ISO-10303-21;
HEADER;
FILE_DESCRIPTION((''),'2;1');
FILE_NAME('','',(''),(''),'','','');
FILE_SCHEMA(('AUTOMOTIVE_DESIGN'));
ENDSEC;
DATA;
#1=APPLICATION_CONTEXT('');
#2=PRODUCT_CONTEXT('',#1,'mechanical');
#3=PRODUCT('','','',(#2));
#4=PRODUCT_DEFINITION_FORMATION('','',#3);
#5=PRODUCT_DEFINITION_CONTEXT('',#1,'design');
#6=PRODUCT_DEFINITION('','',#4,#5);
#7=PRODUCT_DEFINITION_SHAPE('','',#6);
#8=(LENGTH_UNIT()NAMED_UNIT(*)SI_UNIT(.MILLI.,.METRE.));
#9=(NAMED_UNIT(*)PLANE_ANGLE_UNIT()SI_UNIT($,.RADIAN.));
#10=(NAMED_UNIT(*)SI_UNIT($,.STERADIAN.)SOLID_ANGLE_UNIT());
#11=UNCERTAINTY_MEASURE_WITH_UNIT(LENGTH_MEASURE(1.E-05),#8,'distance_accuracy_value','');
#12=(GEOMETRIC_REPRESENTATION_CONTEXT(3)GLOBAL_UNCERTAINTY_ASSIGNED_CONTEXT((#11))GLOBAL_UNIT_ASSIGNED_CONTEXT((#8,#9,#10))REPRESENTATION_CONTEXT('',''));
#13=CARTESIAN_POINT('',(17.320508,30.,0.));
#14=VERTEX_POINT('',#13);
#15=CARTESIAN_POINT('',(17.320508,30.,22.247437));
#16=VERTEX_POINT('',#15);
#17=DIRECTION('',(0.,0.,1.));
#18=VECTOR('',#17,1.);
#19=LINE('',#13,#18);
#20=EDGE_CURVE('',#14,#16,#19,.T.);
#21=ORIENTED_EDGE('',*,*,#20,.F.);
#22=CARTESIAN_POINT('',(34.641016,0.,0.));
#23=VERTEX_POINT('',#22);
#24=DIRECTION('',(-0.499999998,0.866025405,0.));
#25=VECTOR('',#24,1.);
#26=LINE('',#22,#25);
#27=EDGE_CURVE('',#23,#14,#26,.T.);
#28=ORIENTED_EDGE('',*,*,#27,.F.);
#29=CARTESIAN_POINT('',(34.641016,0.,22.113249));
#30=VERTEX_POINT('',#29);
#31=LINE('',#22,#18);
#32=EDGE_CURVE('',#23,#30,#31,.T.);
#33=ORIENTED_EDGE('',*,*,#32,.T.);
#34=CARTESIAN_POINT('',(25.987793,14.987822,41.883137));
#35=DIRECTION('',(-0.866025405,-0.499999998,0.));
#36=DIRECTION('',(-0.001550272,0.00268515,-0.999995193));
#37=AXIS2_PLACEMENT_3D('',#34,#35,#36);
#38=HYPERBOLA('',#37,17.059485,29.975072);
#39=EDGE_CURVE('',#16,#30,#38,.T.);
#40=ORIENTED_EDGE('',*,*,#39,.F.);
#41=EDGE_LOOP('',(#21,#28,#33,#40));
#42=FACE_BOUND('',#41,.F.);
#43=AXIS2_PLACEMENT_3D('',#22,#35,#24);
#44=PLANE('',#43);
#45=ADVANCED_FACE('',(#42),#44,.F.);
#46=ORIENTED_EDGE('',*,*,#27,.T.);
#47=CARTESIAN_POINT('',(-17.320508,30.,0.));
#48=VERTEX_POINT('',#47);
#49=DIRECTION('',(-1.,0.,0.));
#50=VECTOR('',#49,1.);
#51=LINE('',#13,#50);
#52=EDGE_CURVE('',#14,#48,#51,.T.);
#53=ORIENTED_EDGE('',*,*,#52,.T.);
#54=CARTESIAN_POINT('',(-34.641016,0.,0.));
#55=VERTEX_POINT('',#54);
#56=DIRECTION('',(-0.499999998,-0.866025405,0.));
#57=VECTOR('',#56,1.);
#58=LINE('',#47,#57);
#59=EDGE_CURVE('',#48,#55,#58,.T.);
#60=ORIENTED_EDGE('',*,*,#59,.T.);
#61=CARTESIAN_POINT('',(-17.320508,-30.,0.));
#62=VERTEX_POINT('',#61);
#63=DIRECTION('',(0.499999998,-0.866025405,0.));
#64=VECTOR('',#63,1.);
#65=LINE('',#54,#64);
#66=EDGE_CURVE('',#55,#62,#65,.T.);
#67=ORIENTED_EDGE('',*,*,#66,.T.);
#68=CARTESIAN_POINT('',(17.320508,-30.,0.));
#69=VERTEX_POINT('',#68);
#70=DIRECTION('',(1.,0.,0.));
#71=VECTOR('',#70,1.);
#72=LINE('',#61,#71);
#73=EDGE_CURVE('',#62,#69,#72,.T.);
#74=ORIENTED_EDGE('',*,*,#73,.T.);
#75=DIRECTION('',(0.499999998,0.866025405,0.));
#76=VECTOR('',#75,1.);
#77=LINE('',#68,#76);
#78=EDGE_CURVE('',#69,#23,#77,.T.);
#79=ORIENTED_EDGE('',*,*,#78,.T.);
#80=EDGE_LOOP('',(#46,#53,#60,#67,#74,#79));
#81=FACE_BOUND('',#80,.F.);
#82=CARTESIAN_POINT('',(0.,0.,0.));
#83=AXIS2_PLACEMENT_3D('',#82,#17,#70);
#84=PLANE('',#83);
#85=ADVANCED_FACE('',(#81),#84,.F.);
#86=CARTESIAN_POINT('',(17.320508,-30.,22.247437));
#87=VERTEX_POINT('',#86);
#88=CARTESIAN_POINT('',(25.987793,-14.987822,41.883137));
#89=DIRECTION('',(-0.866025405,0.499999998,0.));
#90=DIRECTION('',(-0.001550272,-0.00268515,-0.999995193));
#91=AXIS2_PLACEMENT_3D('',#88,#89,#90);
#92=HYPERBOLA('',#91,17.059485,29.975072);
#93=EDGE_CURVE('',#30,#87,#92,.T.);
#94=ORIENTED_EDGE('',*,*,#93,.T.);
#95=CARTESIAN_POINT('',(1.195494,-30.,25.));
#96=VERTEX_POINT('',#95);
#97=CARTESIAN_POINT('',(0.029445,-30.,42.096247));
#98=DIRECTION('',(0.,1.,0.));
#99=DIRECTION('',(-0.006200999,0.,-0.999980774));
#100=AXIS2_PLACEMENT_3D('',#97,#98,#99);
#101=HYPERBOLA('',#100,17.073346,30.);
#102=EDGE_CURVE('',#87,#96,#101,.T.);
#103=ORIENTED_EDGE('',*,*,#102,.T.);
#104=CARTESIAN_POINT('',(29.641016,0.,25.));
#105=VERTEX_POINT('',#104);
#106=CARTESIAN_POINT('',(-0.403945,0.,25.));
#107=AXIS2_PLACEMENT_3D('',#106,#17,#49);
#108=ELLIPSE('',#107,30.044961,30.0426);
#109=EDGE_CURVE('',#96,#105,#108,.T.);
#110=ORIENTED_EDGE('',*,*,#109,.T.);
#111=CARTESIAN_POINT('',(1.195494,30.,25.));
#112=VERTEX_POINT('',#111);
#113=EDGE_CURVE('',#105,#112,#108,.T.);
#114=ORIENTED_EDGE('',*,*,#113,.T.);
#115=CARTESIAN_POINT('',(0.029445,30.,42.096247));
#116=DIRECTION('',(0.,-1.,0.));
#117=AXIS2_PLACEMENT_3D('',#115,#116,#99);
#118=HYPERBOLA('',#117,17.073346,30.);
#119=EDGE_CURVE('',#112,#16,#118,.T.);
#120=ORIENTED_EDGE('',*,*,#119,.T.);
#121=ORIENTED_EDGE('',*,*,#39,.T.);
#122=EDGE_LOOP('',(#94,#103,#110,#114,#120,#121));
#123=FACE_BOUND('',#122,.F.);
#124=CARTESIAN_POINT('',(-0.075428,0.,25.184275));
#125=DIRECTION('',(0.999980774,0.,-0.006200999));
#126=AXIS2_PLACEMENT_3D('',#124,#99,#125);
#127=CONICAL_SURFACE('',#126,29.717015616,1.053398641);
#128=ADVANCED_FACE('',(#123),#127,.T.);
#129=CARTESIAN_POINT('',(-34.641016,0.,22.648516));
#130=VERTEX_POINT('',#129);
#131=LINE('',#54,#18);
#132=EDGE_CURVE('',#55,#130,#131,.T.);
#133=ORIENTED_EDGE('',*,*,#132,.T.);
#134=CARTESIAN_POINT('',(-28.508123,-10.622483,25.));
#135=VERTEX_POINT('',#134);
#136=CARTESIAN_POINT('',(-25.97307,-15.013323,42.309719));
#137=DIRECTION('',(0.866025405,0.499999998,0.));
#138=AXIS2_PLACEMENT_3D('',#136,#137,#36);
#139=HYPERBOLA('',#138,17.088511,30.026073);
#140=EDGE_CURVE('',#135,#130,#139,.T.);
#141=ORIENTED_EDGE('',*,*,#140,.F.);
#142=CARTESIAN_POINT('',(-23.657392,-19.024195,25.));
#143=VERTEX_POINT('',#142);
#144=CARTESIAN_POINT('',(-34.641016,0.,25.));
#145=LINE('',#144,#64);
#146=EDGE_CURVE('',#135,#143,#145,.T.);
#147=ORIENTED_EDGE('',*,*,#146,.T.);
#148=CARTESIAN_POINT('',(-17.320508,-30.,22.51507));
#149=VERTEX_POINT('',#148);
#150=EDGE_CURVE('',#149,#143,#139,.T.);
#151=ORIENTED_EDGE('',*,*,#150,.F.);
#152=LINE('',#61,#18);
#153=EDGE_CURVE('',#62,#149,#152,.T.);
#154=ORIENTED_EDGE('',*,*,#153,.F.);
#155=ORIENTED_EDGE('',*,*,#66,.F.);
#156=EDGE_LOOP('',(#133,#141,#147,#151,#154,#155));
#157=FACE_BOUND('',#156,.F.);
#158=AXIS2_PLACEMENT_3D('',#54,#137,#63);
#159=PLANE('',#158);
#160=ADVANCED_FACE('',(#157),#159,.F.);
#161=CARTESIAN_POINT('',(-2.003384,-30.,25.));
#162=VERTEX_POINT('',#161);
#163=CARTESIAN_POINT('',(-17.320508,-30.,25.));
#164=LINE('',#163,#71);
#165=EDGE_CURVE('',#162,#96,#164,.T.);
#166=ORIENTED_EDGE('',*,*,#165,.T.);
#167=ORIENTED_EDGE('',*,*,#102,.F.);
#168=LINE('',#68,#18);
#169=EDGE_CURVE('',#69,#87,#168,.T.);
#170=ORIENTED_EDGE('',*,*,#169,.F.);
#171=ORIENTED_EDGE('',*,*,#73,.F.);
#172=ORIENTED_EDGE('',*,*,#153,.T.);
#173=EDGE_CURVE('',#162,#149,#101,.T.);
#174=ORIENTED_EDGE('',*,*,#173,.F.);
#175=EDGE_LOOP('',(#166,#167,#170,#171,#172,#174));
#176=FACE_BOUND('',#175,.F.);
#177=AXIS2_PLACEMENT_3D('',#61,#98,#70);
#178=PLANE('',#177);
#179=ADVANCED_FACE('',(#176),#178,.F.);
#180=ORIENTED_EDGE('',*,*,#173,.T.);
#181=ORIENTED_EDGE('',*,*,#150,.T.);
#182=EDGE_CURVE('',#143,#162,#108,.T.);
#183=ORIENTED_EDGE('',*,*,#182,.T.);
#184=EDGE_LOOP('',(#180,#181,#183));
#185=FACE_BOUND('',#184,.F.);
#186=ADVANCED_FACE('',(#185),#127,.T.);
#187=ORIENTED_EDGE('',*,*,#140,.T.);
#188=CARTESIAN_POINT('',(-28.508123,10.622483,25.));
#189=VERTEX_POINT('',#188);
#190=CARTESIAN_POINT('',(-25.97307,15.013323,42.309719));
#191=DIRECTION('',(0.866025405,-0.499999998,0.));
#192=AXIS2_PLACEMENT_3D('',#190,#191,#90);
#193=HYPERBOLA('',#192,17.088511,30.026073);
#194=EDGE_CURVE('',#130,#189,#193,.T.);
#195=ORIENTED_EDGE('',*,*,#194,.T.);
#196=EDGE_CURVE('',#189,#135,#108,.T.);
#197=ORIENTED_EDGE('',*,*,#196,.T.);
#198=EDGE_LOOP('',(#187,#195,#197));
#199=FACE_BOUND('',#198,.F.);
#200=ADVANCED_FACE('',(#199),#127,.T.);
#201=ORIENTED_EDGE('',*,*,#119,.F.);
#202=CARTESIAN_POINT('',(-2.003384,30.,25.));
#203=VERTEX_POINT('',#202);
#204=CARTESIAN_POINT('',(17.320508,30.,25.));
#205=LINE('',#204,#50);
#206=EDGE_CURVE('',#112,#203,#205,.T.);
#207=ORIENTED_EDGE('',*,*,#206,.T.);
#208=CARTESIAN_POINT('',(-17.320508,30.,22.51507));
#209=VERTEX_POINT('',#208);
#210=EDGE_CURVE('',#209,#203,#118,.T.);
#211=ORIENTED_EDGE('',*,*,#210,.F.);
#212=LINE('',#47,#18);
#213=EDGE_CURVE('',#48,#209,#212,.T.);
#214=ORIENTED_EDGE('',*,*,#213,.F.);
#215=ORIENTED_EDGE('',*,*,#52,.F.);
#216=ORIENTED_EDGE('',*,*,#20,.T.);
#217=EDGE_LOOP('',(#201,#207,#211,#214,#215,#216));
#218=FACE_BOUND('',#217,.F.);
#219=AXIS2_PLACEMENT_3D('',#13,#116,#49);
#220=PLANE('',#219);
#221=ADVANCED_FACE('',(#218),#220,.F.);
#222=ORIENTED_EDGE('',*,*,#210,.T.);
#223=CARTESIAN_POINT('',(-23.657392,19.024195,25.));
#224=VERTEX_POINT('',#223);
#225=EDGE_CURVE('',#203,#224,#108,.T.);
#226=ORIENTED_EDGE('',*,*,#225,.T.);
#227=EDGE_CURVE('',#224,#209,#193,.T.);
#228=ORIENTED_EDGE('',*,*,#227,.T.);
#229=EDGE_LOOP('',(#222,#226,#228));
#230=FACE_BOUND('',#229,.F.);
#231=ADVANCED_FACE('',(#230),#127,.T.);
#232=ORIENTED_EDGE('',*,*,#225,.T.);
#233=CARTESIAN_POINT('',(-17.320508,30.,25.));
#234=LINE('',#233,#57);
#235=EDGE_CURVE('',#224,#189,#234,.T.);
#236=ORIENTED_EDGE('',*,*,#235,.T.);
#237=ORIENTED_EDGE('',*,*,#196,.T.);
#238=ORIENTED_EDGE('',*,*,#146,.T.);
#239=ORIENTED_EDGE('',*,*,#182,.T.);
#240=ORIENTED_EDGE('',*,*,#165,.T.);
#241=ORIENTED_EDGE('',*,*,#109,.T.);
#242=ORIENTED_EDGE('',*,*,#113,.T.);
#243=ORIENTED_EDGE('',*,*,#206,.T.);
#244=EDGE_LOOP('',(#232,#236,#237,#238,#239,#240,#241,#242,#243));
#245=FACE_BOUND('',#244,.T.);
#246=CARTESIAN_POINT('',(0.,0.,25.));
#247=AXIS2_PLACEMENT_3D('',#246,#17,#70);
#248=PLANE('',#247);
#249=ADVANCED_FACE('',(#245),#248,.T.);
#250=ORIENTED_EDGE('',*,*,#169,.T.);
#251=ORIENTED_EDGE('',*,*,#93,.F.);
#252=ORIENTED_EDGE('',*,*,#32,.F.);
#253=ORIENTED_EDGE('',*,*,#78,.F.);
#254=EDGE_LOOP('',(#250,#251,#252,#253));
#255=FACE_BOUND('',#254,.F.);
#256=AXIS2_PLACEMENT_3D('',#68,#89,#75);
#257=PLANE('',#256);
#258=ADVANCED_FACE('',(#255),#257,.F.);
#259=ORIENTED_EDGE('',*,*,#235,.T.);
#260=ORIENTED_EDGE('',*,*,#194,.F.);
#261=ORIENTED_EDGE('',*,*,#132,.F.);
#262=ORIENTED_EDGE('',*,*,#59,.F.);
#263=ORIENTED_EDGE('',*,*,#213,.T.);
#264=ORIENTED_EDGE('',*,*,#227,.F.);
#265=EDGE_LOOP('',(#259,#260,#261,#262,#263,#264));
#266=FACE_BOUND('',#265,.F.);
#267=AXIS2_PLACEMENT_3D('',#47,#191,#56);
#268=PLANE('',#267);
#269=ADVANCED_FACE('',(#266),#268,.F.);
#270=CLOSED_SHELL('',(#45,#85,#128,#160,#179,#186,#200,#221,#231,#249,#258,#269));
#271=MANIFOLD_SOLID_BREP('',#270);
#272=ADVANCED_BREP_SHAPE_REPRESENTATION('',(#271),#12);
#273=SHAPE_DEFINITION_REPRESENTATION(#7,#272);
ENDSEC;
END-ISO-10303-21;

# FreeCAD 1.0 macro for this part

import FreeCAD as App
import Part
import Sketcher
from FreeCAD import Vector
Q = App.Units.Quantity

doc = App.newDocument("Part")
params = doc.addObject("Spreadsheet::Sheet", "Params")
for row, (alias, value) in enumerate([
    ("pad1_length", "25 mm"),
    ("sketch2_width", "5 mm"),
    ("groove_angle", "360 deg"),
], start=1):
    params.set(f"A{row}", alias)
    params.set(f"B{row}", "=" + value)
    params.setAlias(f"B{row}", alias)

body = doc.addObject("PartDesign::Body", "Body")

# Sketch on XY plane
sketch1 = doc.addObject("Sketcher::SketchObject", "Sketch")
body.addObject(sketch1)
sketch1.AttachmentSupport = (doc.XY_Plane, [""])
sketch1.MapMode = "FlatFace"
sketch1.addGeometry(Part.LineSegment(Vector(17.320508, 30, 0), Vector(-17.320508, 30, 0)), False)
sketch1.addGeometry(Part.LineSegment(Vector(-17.320508, 30, 0), Vector(-34.641016, 0, 0)), False)
sketch1.addGeometry(Part.LineSegment(Vector(-34.641016, 0, 0), Vector(-17.320508, -30, 0)), False)
sketch1.addGeometry(Part.LineSegment(Vector(-17.320508, -30, 0), Vector(17.320508, -30, 0)), False)
sketch1.addGeometry(Part.LineSegment(Vector(17.320508, -30, 0), Vector(34.641016, 0, 0)), False)
sketch1.addGeometry(Part.LineSegment(Vector(34.641016, 0, 0), Vector(17.320508, 30, 0)), False)
sketch1.addConstraint(Sketcher.Constraint("Coincident", 0, 2, 1, 1))
sketch1.addConstraint(Sketcher.Constraint("Coincident", 1, 2, 2, 1))
sketch1.addConstraint(Sketcher.Constraint("Coincident", 2, 2, 3, 1))
sketch1.addConstraint(Sketcher.Constraint("Coincident", 3, 2, 4, 1))
sketch1.addConstraint(Sketcher.Constraint("Coincident", 4, 2, 5, 1))
sketch1.addConstraint(Sketcher.Constraint("Coincident", 5, 2, 0, 1))
sketch1.addConstraint(Sketcher.Constraint("Horizontal", 0))
sketch1.addConstraint(Sketcher.Constraint("Horizontal", 3))
sketch1.addConstraint(Sketcher.Constraint("Symmetric", 0, 2, 3, 2, -1, 1))
sketch1.addConstraint(Sketcher.Constraint("Symmetric", 1, 2, 4, 2, -1, 1))
sketch1.addConstraint(Sketcher.Constraint("PointOnObject", 1, 2, -1))
sketch1.addConstraint(Sketcher.Constraint("Parallel", 2, 5))
sketch1.addConstraint(Sketcher.Constraint("Vertical", 0, 2, 2, 2))
sketch1.addConstraint(Sketcher.Constraint("Angle", 1, Q("-120 deg")))
sketch1.addConstraint(Sketcher.Constraint("DistanceY", -1, 1, 0, 2, Q("30 mm")))
sketch1.addConstraint(Sketcher.Constraint("DistanceX", 0, 2, 0, 1, Q("34.641016 mm")))
pad1 = doc.addObject("PartDesign::Pad", "Pad")
body.addObject(pad1)
pad1.Profile = sketch1
pad1.setExpression("Length", "Params.pad1_length")

# Sketch on XZ plane
sketch2 = doc.addObject("Sketcher::SketchObject", "Sketch001")
body.addObject(sketch2)
sketch2.AttachmentSupport = (doc.XZ_Plane, [""])
sketch2.MapMode = "FlatFace"
sketch2.addGeometry(Part.LineSegment(Vector(34.641016, 22.113249, 0), Vector(34.641016, 25, 0)), False)
sketch2.addGeometry(Part.LineSegment(Vector(34.641016, 25, 0), Vector(29.641016, 25, 0)), False)
sketch2.addGeometry(Part.LineSegment(Vector(29.641016, 25, 0), Vector(34.641016, 22.113249, 0)), False)
sketch2.addGeometry(Part.LineSegment(Vector(-0.093136, 22.32864, 0), Vector(-0.075236, 25.21528, 0)), True)  # axis
sketch2.addConstraint(Sketcher.Constraint("Coincident", 0, 2, 1, 1))
sketch2.addConstraint(Sketcher.Constraint("Coincident", 1, 2, 2, 1))
sketch2.addConstraint(Sketcher.Constraint("Coincident", 2, 2, 0, 1))
sketch2.addConstraint(Sketcher.Constraint("Vertical", 0))
sketch2.addConstraint(Sketcher.Constraint("Horizontal", 1))
sketch2.addConstraint(Sketcher.Constraint("DistanceX", 1, 2, 1, 1, Q("5 mm")))
sketch2.addConstraint(Sketcher.Constraint("Angle", 2, Q("-29.999997 deg")))
sketch2.addConstraint(Sketcher.Constraint("DistanceY", -1, 1, 0, 2, Q("25 mm")))
sketch2.addConstraint(Sketcher.Constraint("DistanceX", 3, 1, 3, 2, Q("0.0179 mm")))
sketch2.addConstraint(Sketcher.Constraint("DistanceY", -1, 1, 3, 1, Q("22.32864 mm")))
sketch2.addConstraint(Sketcher.Constraint("DistanceY", -1, 1, 3, 2, Q("25.21528 mm")))
sketch2.addConstraint(Sketcher.Constraint("DistanceX", -1, 1, 0, 2, Q("34.641016 mm")))
sketch2.addConstraint(Sketcher.Constraint("DistanceX", 3, 1, -1, 1, Q("0.093136 mm")))
sketch2.setExpression("Constraints[5]", "Params.sketch2_width")
groove = doc.addObject("PartDesign::Groove", "Groove")
body.addObject(groove)
groove.Profile = sketch2
groove.ReferenceAxis = (sketch2, ["Axis0"])
groove.setExpression("Angle", "Params.groove_angle")

doc.recompute()
